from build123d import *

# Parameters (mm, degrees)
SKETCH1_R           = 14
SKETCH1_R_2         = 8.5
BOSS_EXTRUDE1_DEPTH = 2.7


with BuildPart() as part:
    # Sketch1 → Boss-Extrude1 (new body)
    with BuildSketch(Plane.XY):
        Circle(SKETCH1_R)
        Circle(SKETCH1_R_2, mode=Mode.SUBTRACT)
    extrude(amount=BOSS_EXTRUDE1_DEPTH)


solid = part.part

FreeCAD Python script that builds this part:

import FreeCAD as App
import Part
import Sketcher
Q = App.Units.Quantity

doc = App.newDocument("Part")
body = doc.addObject("PartDesign::Body", "Body")

sketch1 = body.newObject("Sketcher::SketchObject", "Sketch")
sketch1.AttachmentSupport = (doc.getObject("XY_Plane"), [""])
sketch1.MapMode = "FlatFace"
sketch1.addGeometry([
    Part.Circle(App.Vector(0, 0, 0), App.Vector(0, 0, 1), 14),
    Part.Circle(App.Vector(0, 0, 0), App.Vector(0, 0, 1), 8),
], False)
sketch1.addConstraint([
    Sketcher.Constraint("Coincident", 0, 3, -1, 1),
    Sketcher.Constraint("Coincident", 1, 3, -1, 1),
    Sketcher.Constraint("Diameter", 0, Q("28 mm")),
    Sketcher.Constraint("Diameter", 1, Q("17 mm")),
])
pad1 = body.newObject("PartDesign::Pad", "Pad")
pad1.Profile = sketch1
pad1.Length = 2.7

doc.recompute()
